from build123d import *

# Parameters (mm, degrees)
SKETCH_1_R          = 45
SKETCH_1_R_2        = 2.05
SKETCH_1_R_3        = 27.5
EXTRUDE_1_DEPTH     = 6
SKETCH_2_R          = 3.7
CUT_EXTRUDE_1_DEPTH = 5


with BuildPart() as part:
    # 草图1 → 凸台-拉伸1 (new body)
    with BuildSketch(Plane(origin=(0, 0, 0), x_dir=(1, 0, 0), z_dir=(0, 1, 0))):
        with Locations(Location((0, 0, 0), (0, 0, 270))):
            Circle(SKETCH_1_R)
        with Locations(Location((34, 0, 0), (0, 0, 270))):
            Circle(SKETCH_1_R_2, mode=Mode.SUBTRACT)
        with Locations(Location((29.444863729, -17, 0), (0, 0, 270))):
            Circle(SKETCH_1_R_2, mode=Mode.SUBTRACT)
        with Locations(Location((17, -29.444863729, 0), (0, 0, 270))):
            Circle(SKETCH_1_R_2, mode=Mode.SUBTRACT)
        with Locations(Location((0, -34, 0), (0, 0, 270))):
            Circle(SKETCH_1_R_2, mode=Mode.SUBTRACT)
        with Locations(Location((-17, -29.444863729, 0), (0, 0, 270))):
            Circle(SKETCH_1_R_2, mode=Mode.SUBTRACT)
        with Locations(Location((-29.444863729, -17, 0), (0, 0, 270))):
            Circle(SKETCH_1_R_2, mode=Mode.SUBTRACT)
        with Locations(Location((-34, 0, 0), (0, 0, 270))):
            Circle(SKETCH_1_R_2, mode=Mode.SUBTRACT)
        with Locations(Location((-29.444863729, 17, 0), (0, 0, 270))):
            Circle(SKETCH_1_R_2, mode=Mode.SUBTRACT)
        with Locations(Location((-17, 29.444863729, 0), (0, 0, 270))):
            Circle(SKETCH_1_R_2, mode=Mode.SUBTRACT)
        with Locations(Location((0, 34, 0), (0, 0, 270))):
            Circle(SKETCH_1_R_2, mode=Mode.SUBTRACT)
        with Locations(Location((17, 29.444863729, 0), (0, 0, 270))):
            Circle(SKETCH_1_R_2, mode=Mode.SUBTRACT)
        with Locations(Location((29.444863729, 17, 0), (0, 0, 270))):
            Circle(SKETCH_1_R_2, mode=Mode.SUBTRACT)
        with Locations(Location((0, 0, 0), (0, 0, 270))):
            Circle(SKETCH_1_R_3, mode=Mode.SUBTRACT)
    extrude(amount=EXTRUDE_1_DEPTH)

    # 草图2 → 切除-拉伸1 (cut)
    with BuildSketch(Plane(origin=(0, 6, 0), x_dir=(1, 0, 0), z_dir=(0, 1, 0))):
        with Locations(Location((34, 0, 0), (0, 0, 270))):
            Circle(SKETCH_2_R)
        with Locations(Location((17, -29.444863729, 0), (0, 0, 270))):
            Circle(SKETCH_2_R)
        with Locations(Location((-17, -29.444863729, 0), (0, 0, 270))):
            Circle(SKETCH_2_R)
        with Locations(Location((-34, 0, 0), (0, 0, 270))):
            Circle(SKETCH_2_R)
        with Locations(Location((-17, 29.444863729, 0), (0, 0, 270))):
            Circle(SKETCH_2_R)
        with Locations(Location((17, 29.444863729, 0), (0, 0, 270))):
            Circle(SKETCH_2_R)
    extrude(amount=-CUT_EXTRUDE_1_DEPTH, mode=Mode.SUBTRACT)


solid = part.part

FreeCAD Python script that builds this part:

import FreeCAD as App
import Part
import Sketcher
from FreeCAD import Vector

doc = App.newDocument("Part")
body = doc.addObject("PartDesign::Body", "Body")

sketch1 = doc.addObject("Sketcher::SketchObject", "Sketch")
body.addObject(sketch1)
sketch1.AttachmentSupport = (doc.XZ_Plane, [""])
sketch1.MapMode = "FlatFace"
sketch1.addGeometry(Part.Circle(Vector(0, 0, 0), Vector(0, 0, 1), 45), False)
sketch1.addGeometry(Part.Circle(Vector(-29.4, -17, 0), Vector(0, 0, 1), 2), False)
sketch1.addGeometry(Part.Circle(Vector(-17, -29.4, 0), Vector(0, 0, 1), 2), False)
sketch1.addGeometry(Part.Circle(Vector(0, -34, 0), Vector(0, 0, 1), 2), False)
sketch1.addGeometry(Part.Circle(Vector(-34, 0, 0), Vector(0, 0, 1), 2), False)
sketch1.addGeometry(Part.Circle(Vector(-29.4, 17, 0), Vector(0, 0, 1), 2), False)
sketch1.addGeometry(Part.Circle(Vector(-17, 29.4, 0), Vector(0, 0, 1), 2), False)
sketch1.addGeometry(Part.Circle(Vector(17, -29.4, 0), Vector(0, 0, 1), 2), False)
sketch1.addGeometry(Part.Circle(Vector(29.4, -17, 0), Vector(0, 0, 1), 2), False)
sketch1.addGeometry(Part.Circle(Vector(34, 0, 0), Vector(0, 0, 1), 2), False)
sketch1.addGeometry(Part.Circle(Vector(0, 0, 0), Vector(0, 0, 1), 27.5), False)
sketch1.addGeometry(Part.Circle(Vector(0, 34, 0), Vector(0, 0, 1), 2), False)
sketch1.addGeometry(Part.Circle(Vector(17, 29.4, 0), Vector(0, 0, 1), 2), False)
sketch1.addGeometry(Part.Circle(Vector(29.4, 17, 0), Vector(0, 0, 1), 2), False)
sketch1.addConstraint(Sketcher.Constraint("Coincident", 0, 3, -1, 1))
sketch1.addConstraint(Sketcher.Constraint("Coincident", 10, 3, -1, 1))
sketch1.addConstraint(Sketcher.Constraint("Equal", 1, 2))
sketch1.addConstraint(Sketcher.Constraint("Equal", 2, 3))
sketch1.addConstraint(Sketcher.Constraint("Equal", 3, 4))
sketch1.addConstraint(Sketcher.Constraint("Equal", 4, 5))
sketch1.addConstraint(Sketcher.Constraint("Equal", 5, 6))
sketch1.addConstraint(Sketcher.Constraint("Equal", 6, 7))
sketch1.addConstraint(Sketcher.Constraint("Equal", 7, 8))
sketch1.addConstraint(Sketcher.Constraint("Equal", 8, 9))
sketch1.addConstraint(Sketcher.Constraint("Equal", 9, 11))
sketch1.addConstraint(Sketcher.Constraint("Equal", 11, 12))
sketch1.addConstraint(Sketcher.Constraint("Equal", 12, 13))
sketch1.addConstraint(Sketcher.Constraint("Symmetric", 6, 3, 7, 3, -1, 1))
sketch1.addConstraint(Sketcher.Constraint("Symmetric", 5, 3, 8, 3, -1, 1))
sketch1.addConstraint(Sketcher.Constraint("Symmetric", 4, 3, 9, 3, -1, 1))
sketch1.addConstraint(Sketcher.Constraint("Symmetric", 3, 3, 11, 3, -1, 1))
sketch1.addConstraint(Sketcher.Constraint("Symmetric", 2, 3, 12, 3, -1, 1))
sketch1.addConstraint(Sketcher.Constraint("Symmetric", 1, 3, 13, 3, -1, 1))
sketch1.addConstraint(Sketcher.Constraint("Symmetric", 2, 3, 7, 3, -2))
sketch1.addConstraint(Sketcher.Constraint("Symmetric", 1, 3, 8, 3, -2))
sketch1.addConstraint(Sketcher.Constraint("PointOnObject", 3, 3, -2))
sketch1.addConstraint(Sketcher.Constraint("PointOnObject", 4, 3, -1))
sketch1.addConstraint(Sketcher.Constraint("Diameter", 0, 90.0))
sketch1.addConstraint(Sketcher.Constraint("Diameter", 10, 55.0))
sketch1.addConstraint(Sketcher.Constraint("Diameter", 1, 4.1))
sketch1.addConstraint(Sketcher.Constraint("DistanceY", 1, 3, -1, 1, 17.0))
sketch1.addConstraint(Sketcher.Constraint("DistanceX", 2, 3, -1, 1, 17.0))
sketch1.addConstraint(Sketcher.Constraint("DistanceY", 3, 3, -1, 1, 34.0))
sketch1.addConstraint(Sketcher.Constraint("DistanceX", 4, 3, -1, 1, 34.0))
sketch1.addConstraint(Sketcher.Constraint("DistanceX", 1, 3, -1, 1, 29.444864))
sketch1.addConstraint(Sketcher.Constraint("DistanceY", 2, 3, -1, 1, 29.444864))
pad1 = doc.addObject("PartDesign::Pad", "Pad")
body.addObject(pad1)
pad1.Profile = sketch1
pad1.Length = 6
pad1.Reversed = True

sketch2 = doc.addObject("Sketcher::SketchObject", "Sketch001")
body.addObject(sketch2)
sketch2.AttachmentSupport = (doc.XZ_Plane, [""])
sketch2.MapMode = "FlatFace"
sketch2.AttachmentOffset = App.Placement(Vector(0, 0, -6), App.Rotation())
sketch2.addGeometry(Part.Circle(Vector(34, 0, 0), Vector(0, 0, 1), 3.7), False)
sketch2.addGeometry(Part.Circle(Vector(17, 29.4, 0), Vector(0, 0, 1), 3.7), False)
sketch2.addGeometry(Part.Circle(Vector(-17, 29.4, 0), Vector(0, 0, 1), 3.7), False)
sketch2.addGeometry(Part.Circle(Vector(-34, 0, 0), Vector(0, 0, 1), 3.7), False)
sketch2.addGeometry(Part.Circle(Vector(-17, -29.4, 0), Vector(0, 0, 1), 3.7), False)
sketch2.addGeometry(Part.Circle(Vector(17, -29.4, 0), Vector(0, 0, 1), 3.7), False)
sketch2.addConstraint(Sketcher.Constraint("Equal", 0, 1))
sketch2.addConstraint(Sketcher.Constraint("Equal", 1, 2))
sketch2.addConstraint(Sketcher.Constraint("Equal", 2, 3))
sketch2.addConstraint(Sketcher.Constraint("Equal", 3, 4))
sketch2.addConstraint(Sketcher.Constraint("Equal", 4, 5))
sketch2.addConstraint(Sketcher.Constraint("Symmetric", 0, 3, 3, 3, -1, 1))
sketch2.addConstraint(Sketcher.Constraint("Symmetric", 1, 3, 4, 3, -1, 1))
sketch2.addConstraint(Sketcher.Constraint("Symmetric", 2, 3, 5, 3, -1, 1))
sketch2.addConstraint(Sketcher.Constraint("Symmetric", 1, 3, 2, 3, -2))
sketch2.addConstraint(Sketcher.Constraint("PointOnObject", 0, 3, -1))
sketch2.addConstraint(Sketcher.Constraint("Diameter", 0, 7.4))
sketch2.addConstraint(Sketcher.Constraint("DistanceX", -1, 1, 0, 3, 34.0))
sketch2.addConstraint(Sketcher.Constraint("DistanceX", -1, 1, 1, 3, 17.0))
sketch2.addConstraint(Sketcher.Constraint("DistanceY", -1, 1, 1, 3, 29.444864))
pocket1 = doc.addObject("PartDesign::Pocket", "Pocket")
body.addObject(pocket1)
pocket1.Profile = sketch2
pocket1.Length = 5
pocket1.Reversed = True

doc.recompute()
